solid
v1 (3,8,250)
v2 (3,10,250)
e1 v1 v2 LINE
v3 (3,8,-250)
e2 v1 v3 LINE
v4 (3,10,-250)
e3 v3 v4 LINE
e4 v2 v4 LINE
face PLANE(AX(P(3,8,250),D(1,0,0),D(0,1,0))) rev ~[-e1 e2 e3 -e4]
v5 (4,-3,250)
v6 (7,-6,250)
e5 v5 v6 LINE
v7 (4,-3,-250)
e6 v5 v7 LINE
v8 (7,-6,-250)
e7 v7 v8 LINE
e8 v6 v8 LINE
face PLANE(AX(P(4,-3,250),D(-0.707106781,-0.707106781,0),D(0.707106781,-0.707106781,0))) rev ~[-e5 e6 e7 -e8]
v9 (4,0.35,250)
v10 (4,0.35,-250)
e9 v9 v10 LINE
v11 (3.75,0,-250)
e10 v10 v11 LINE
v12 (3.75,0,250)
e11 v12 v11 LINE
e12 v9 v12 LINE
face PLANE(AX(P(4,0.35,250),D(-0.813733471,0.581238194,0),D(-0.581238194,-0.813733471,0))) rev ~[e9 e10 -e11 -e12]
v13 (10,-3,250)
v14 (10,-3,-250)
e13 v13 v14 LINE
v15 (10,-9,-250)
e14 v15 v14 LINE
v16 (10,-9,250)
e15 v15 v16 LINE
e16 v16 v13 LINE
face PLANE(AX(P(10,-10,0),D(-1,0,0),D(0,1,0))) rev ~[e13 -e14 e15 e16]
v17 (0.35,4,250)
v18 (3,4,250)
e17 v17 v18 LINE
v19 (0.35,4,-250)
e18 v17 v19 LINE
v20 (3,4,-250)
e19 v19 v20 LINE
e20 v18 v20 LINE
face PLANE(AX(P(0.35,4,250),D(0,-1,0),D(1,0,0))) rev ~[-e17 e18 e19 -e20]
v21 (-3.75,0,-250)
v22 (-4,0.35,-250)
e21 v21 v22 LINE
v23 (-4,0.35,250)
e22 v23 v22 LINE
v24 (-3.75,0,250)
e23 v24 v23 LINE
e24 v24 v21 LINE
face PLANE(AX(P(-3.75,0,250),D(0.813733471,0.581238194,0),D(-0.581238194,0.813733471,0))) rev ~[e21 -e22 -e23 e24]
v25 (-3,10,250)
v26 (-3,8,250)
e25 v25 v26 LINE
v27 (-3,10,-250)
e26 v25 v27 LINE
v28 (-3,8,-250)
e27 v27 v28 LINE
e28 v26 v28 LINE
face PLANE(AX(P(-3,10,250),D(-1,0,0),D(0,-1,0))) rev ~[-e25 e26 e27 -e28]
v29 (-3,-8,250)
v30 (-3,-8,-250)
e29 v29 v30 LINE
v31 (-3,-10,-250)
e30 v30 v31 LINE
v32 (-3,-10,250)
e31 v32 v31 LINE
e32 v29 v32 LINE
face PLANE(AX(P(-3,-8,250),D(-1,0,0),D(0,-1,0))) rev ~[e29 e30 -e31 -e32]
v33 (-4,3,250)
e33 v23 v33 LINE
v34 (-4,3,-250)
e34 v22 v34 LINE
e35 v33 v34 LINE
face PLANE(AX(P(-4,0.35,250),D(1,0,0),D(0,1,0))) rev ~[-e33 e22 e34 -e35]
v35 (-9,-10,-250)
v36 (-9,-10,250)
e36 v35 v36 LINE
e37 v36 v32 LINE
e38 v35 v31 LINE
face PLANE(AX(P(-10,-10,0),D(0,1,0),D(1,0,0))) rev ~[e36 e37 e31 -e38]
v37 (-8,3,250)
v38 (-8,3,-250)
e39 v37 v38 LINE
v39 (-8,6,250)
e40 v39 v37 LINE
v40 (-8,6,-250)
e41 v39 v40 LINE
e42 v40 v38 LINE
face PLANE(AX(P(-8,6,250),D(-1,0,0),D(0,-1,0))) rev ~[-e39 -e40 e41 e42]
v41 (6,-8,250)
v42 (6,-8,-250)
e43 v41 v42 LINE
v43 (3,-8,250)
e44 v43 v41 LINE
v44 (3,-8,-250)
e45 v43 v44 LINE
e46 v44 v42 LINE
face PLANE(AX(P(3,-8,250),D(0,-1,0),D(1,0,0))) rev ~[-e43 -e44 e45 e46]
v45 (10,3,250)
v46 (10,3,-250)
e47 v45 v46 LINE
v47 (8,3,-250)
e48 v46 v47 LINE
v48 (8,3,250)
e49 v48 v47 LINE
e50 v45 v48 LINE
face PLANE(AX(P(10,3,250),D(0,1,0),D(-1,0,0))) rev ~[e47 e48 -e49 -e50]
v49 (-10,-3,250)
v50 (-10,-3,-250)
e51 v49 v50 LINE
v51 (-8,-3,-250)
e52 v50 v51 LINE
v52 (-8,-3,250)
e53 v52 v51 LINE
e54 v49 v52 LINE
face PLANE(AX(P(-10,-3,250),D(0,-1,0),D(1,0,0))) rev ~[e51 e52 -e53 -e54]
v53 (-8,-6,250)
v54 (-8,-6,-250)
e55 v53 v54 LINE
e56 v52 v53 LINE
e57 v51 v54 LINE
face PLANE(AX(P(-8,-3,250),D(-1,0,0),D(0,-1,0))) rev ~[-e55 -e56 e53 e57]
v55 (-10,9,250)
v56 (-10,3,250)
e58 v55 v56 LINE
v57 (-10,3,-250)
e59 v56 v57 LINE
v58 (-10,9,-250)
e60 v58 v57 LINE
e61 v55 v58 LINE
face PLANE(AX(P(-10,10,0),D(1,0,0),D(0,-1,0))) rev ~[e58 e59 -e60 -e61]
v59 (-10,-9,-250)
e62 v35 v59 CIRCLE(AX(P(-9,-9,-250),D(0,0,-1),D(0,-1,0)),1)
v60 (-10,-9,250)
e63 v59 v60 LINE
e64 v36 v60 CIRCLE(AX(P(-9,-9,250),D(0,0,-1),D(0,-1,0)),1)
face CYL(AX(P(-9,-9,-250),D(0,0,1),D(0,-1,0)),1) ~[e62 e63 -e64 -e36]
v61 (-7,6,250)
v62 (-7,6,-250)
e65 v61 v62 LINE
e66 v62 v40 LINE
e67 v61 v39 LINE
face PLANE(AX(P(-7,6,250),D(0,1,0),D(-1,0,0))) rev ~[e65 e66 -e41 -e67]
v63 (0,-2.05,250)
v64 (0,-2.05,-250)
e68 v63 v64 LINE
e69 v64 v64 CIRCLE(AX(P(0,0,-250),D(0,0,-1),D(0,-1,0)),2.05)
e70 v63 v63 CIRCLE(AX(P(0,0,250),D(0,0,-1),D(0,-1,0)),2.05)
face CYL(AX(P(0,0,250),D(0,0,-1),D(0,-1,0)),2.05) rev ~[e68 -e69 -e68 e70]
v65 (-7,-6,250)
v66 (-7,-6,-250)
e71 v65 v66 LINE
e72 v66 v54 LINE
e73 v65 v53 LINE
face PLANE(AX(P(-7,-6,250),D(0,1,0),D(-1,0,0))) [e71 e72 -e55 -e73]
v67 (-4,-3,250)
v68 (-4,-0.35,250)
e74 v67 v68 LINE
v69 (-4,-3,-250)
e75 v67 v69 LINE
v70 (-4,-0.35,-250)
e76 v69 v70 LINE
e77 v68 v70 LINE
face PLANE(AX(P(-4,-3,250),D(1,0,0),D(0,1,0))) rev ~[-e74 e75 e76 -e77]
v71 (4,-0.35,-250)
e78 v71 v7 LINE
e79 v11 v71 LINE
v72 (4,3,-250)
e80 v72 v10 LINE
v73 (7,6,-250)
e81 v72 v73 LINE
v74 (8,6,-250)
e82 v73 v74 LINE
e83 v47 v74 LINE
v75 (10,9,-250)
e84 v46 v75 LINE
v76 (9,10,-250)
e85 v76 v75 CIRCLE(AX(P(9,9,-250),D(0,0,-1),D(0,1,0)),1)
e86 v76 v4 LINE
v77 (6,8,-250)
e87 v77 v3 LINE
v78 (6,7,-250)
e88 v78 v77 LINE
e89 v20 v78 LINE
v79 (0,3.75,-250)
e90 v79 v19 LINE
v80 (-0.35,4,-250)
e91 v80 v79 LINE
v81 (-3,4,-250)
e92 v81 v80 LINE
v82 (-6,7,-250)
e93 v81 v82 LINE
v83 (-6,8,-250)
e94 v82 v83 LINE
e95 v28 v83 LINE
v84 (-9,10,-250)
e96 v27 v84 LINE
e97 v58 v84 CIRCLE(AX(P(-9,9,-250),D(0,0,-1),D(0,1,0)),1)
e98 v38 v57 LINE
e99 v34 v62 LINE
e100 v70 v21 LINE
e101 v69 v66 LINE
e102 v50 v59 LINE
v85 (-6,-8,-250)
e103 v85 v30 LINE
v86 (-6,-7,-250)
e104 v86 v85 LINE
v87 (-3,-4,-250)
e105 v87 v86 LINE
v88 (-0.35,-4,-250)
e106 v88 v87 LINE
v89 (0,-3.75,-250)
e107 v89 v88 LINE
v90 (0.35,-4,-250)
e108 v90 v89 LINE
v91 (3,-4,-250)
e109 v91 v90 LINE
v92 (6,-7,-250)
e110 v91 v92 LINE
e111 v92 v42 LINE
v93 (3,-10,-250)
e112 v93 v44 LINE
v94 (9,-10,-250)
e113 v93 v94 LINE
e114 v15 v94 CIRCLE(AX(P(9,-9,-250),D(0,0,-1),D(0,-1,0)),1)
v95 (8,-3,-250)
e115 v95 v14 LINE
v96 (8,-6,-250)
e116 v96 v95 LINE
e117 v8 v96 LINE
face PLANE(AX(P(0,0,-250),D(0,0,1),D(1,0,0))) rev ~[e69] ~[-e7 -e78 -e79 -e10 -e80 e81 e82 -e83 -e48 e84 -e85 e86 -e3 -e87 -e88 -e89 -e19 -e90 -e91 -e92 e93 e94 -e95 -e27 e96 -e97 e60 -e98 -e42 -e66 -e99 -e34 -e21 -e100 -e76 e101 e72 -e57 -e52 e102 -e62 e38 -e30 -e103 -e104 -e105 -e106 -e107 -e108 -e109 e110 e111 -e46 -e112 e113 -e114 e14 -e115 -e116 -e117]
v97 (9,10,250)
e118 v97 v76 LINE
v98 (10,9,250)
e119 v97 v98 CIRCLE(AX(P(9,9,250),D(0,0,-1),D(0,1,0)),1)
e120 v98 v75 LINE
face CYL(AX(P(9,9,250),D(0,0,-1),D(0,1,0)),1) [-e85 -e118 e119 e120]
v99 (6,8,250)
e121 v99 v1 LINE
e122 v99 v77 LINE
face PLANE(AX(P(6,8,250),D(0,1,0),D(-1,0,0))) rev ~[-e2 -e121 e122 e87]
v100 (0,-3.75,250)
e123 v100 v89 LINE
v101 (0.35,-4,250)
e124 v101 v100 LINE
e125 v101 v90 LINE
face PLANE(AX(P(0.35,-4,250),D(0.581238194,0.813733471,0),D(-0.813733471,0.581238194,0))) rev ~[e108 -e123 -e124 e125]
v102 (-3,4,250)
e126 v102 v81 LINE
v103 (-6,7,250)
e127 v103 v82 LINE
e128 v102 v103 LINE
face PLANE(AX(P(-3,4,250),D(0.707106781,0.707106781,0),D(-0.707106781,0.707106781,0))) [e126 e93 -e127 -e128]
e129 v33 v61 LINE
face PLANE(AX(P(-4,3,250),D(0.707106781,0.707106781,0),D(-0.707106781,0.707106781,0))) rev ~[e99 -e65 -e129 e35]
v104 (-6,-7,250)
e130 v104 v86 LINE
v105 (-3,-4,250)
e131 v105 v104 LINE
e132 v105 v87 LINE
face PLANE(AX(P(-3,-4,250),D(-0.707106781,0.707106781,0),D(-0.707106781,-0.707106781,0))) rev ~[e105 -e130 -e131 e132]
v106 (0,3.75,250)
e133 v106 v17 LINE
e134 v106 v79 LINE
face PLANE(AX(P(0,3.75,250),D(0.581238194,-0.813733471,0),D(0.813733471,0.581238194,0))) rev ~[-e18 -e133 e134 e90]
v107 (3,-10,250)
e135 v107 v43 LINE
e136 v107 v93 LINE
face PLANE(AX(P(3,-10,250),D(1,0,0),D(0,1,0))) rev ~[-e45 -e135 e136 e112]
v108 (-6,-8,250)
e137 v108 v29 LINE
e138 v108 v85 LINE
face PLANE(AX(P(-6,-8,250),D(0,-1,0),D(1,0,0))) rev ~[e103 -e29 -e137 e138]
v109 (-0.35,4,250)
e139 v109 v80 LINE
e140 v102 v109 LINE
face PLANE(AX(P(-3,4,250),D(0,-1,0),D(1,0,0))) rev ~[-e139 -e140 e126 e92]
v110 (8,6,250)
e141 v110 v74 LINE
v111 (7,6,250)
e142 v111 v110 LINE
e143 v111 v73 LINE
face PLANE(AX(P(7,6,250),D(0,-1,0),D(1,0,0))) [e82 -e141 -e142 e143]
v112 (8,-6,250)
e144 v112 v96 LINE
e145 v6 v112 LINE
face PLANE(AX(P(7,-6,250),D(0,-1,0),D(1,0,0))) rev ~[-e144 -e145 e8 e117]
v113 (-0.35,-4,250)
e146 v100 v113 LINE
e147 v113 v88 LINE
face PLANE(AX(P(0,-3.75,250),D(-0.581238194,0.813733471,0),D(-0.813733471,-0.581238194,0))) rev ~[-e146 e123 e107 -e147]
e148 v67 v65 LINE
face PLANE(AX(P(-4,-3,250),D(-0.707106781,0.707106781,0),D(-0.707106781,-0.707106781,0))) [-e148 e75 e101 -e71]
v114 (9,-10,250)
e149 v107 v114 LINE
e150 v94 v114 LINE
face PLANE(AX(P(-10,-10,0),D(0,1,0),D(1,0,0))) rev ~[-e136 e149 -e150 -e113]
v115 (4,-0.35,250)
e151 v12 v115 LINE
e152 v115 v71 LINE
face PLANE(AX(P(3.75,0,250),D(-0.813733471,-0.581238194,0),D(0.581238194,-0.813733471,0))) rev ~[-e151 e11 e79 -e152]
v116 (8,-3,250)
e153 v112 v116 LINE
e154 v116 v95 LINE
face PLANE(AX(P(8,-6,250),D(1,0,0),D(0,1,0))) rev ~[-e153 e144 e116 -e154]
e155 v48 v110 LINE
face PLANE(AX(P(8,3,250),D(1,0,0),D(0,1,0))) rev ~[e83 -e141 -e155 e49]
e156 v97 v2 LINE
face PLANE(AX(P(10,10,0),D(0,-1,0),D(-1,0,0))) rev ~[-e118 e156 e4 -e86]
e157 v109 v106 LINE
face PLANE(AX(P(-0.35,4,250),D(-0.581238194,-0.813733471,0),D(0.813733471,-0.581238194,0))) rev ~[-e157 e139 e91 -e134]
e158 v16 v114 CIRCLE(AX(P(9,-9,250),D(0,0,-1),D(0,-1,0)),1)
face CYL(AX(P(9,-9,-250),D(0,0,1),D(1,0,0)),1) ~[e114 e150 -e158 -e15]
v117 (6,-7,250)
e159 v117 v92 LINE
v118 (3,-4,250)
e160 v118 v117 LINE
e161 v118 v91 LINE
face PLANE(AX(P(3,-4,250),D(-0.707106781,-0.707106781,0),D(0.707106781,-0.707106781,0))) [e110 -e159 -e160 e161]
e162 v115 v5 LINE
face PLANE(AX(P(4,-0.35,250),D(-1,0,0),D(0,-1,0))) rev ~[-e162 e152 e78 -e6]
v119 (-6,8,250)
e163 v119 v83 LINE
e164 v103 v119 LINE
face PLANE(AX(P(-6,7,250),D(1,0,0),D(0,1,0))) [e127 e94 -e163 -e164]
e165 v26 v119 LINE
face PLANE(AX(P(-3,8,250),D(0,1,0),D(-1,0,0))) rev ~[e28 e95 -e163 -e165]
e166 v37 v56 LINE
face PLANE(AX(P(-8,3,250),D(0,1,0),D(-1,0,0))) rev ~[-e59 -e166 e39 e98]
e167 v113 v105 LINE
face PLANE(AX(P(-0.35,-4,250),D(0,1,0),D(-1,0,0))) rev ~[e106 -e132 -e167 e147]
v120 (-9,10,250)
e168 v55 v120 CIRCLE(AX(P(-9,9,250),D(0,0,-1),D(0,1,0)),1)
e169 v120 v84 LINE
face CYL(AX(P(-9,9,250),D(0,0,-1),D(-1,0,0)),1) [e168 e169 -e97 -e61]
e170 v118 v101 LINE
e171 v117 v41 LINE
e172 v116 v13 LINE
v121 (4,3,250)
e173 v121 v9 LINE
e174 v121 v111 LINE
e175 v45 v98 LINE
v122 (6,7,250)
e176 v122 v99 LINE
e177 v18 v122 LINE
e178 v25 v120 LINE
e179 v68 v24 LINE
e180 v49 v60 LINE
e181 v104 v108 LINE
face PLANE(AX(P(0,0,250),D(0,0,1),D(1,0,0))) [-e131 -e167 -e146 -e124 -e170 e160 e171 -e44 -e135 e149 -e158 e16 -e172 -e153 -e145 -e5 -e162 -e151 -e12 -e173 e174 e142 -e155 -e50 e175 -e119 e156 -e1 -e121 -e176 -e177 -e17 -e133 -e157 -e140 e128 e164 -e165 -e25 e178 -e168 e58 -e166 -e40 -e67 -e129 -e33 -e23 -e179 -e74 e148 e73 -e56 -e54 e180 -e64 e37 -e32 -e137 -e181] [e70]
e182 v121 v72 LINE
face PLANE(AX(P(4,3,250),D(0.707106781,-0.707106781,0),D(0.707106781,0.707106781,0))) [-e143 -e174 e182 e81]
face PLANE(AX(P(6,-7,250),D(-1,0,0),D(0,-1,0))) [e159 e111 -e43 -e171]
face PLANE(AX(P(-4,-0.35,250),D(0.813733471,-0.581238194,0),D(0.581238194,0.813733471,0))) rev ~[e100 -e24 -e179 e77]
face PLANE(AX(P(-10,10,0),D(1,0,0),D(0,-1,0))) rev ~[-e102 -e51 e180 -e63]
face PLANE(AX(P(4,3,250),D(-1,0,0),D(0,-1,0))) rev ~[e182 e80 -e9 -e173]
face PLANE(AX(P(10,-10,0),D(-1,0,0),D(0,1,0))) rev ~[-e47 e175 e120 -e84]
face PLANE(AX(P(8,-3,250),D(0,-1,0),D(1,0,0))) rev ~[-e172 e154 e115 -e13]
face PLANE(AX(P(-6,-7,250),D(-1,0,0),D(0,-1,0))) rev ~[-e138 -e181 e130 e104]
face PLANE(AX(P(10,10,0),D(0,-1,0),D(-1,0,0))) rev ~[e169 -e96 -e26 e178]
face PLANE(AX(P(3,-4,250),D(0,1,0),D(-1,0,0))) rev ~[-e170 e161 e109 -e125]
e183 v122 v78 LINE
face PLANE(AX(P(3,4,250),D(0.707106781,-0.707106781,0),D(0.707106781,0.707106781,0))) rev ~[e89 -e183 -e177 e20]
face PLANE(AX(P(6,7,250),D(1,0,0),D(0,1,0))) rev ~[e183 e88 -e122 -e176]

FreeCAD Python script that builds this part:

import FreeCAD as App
import Part
import Sketcher

V = App.Vector


def edges_at(feature, points):
    """Names of the edges that pass closest to the given points."""
    edges = feature.Shape.Edges
    near = lambda p: min(range(len(edges)), key=lambda i: edges[i].distToShape(Part.Vertex(*p))[0])
    return sorted({f"Edge{near(p) + 1}" for p in points})

doc = App.newDocument("Part")
body = doc.addObject("PartDesign::Body", "Body")

# Sketch on XY plane
sketch1 = body.newObject("Sketcher::SketchObject", "Sketch")
sketch1.AttachmentSupport = (doc.getObject("XY_Plane"), [""])
sketch1.MapMode = "FlatFace"
sketch1.addGeometry([
    Part.LineSegment(V(-10, 10, 0), V(-10, -10, 0)),
    Part.LineSegment(V(-10, -10, 0), V(10, -10, 0)),
    Part.LineSegment(V(10, -10, 0), V(10, 10, 0)),
    Part.LineSegment(V(10, 10, 0), V(-10, 10, 0)),
], False)
sketch1.addConstraint([
    Sketcher.Constraint("Coincident", 0, 2, 1, 1),
    Sketcher.Constraint("Coincident", 1, 2, 2, 1),
    Sketcher.Constraint("Coincident", 2, 2, 3, 1),
    Sketcher.Constraint("Coincident", 3, 2, 0, 1),
    Sketcher.Constraint("Vertical", 0),
    Sketcher.Constraint("Horizontal", 1),
    Sketcher.Constraint("Vertical", 2),
    Sketcher.Constraint("Horizontal", 3),
    Sketcher.Constraint("Symmetric", 0, 2, 2, 2, -1, 1),
    Sketcher.Constraint("Equal", 3, 0),
    Sketcher.Constraint("DistanceX", 1, 1, 1, 2, 20.0),
])
pad1 = body.newObject("PartDesign::Pad", "Pad")
pad1.Profile = sketch1
pad1.Length = 500
pad1.Midplane = True

# Sketch on XY plane
sketch2 = body.newObject("Sketcher::SketchObject", "Sketch001")
sketch2.AttachmentSupport = (doc.getObject("XY_Plane"), [""])
sketch2.MapMode = "FlatFace"
sketch2.AttachmentOffset = App.Placement(V(0, 0, 250), App.Rotation())
sketch2.addGeometry([
    Part.LineSegment(V(3, 10, 0), V(-3, 10, 0)),  # 0
    Part.LineSegment(V(-3, 10, 0), V(-3, 8, 0)),  # 1
    Part.LineSegment(V(-3, 8, 0), V(-6, 8, 0)),  # 2
    Part.LineSegment(V(-6, 8, 0), V(-6, 7, 0)),  # 3
    Part.LineSegment(V(-6, 7, 0), V(-3, 4, 0)),  # 4
    Part.LineSegment(V(-3, 4, 0), V(-0.35, 4, 0)),  # 5
    Part.LineSegment(V(-0.35, 4, 0), V(0, 3.75, 0)),  # 6
    Part.LineSegment(V(0, 3.75, 0), V(0.35, 4, 0)),  # 7
    Part.LineSegment(V(0.35, 4, 0), V(3, 4, 0)),  # 8
    Part.LineSegment(V(3, 4, 0), V(6, 7, 0)),  # 9
    Part.LineSegment(V(6, 7, 0), V(6, 8, 0)),  # 10
    Part.LineSegment(V(6, 8, 0), V(3, 8, 0)),  # 11
    Part.LineSegment(V(3, 8, 0), V(3, 10, 0)),  # 12
], False)
sketch2.addConstraint([
    Sketcher.Constraint("Coincident", 0, 2, 1, 1),
    Sketcher.Constraint("Coincident", 1, 2, 2, 1),
    Sketcher.Constraint("Coincident", 2, 2, 3, 1),
    Sketcher.Constraint("Coincident", 3, 2, 4, 1),
    Sketcher.Constraint("Coincident", 4, 2, 5, 1),
    Sketcher.Constraint("Coincident", 5, 2, 6, 1),
    Sketcher.Constraint("Coincident", 6, 2, 7, 1),
    Sketcher.Constraint("Coincident", 7, 2, 8, 1),
    Sketcher.Constraint("Coincident", 8, 2, 9, 1),
    Sketcher.Constraint("Coincident", 9, 2, 10, 1),
    Sketcher.Constraint("Coincident", 10, 2, 11, 1),
    Sketcher.Constraint("Coincident", 11, 2, 12, 1),
    Sketcher.Constraint("Coincident", 12, 2, 0, 1),
    Sketcher.Constraint("Horizontal", 0),
    Sketcher.Constraint("Vertical", 1),
    Sketcher.Constraint("Horizontal", 2),
    Sketcher.Constraint("Vertical", 3),
    Sketcher.Constraint("Horizontal", 5),
    Sketcher.Constraint("Horizontal", 8),
    Sketcher.Constraint("Vertical", 10),
    Sketcher.Constraint("Horizontal", 11),
    Sketcher.Constraint("Vertical", 12),
    Sketcher.Constraint("Symmetric", 5, 2, 7, 2, -2),
    Sketcher.Constraint("Symmetric", 3, 2, 9, 2, -2),
    Sketcher.Constraint("Symmetric", 1, 2, 11, 2, -2),
    Sketcher.Constraint("PointOnObject", 6, 2, -2),
    Sketcher.Constraint("Perpendicular", 4, 9),
    Sketcher.Constraint("Vertical", 1, 2, 4, 2),
    Sketcher.Constraint("Vertical", 8, 2, 11, 2),
    Sketcher.Constraint("DistanceX", 0, 2, 0, 1, 6.0),
    Sketcher.Constraint("DistanceY", 1, 2, 1, 1, 2.0),
    Sketcher.Constraint("DistanceY", 3, 2, 3, 1, 1.0),
    Sketcher.Constraint("DistanceX", 2, 2, -1, 1, 6.0),
    Sketcher.Constraint("DistanceY", -1, 1, 4, 2, 4.0),
    Sketcher.Constraint("DistanceX", 5, 2, 7, 2, 0.7),
    Sketcher.Constraint("DistanceY", 6, 2, 5, 2, 0.25),
])
pocket1 = body.newObject("PartDesign::Pocket", "Pocket")
pocket1.Profile = sketch2
pocket1.Type = "ThroughAll"
doc.recompute()

polarpattern = body.newObject("PartDesign::PolarPattern", "PolarPattern")
polarpattern.Originals = [pocket1]
polarpattern.Axis = (doc.getObject("Z_Axis"), [""])
polarpattern.Angle = 360
polarpattern.Occurrences = 4
body.Tip = polarpattern
doc.recompute()

fillet = body.newObject("PartDesign::Fillet", "Fillet")
fillet.Base = (polarpattern, edges_at(polarpattern, [
    (10, 10, 0),
    (10, -10, 0),
    (-10, 10, 0),
    (-10, -10, 0),
]))
fillet.Radius = 1

# Sketch on XY plane
sketch3 = body.newObject("Sketcher::SketchObject", "Sketch002")
sketch3.AttachmentSupport = (doc.getObject("XY_Plane"), [""])
sketch3.MapMode = "FlatFace"
sketch3.AttachmentOffset = App.Placement(V(0, 0, 250), App.Rotation())
sketch3.addGeometry(Part.Circle(V(0, 0, 0), V(0, 0, 1), 2.05), False)
sketch3.addConstraint([
    Sketcher.Constraint("Coincident", 0, 3, -1, 1),
    Sketcher.Constraint("Diameter", 0, 4.1),
])
doc.recompute()
hole = body.newObject("PartDesign::Hole", "Hole")
hole.Profile = sketch3
hole.ThreadType = "None"
hole.Diameter = 4.1
hole.DepthType = "ThroughAll"

doc.recompute()
